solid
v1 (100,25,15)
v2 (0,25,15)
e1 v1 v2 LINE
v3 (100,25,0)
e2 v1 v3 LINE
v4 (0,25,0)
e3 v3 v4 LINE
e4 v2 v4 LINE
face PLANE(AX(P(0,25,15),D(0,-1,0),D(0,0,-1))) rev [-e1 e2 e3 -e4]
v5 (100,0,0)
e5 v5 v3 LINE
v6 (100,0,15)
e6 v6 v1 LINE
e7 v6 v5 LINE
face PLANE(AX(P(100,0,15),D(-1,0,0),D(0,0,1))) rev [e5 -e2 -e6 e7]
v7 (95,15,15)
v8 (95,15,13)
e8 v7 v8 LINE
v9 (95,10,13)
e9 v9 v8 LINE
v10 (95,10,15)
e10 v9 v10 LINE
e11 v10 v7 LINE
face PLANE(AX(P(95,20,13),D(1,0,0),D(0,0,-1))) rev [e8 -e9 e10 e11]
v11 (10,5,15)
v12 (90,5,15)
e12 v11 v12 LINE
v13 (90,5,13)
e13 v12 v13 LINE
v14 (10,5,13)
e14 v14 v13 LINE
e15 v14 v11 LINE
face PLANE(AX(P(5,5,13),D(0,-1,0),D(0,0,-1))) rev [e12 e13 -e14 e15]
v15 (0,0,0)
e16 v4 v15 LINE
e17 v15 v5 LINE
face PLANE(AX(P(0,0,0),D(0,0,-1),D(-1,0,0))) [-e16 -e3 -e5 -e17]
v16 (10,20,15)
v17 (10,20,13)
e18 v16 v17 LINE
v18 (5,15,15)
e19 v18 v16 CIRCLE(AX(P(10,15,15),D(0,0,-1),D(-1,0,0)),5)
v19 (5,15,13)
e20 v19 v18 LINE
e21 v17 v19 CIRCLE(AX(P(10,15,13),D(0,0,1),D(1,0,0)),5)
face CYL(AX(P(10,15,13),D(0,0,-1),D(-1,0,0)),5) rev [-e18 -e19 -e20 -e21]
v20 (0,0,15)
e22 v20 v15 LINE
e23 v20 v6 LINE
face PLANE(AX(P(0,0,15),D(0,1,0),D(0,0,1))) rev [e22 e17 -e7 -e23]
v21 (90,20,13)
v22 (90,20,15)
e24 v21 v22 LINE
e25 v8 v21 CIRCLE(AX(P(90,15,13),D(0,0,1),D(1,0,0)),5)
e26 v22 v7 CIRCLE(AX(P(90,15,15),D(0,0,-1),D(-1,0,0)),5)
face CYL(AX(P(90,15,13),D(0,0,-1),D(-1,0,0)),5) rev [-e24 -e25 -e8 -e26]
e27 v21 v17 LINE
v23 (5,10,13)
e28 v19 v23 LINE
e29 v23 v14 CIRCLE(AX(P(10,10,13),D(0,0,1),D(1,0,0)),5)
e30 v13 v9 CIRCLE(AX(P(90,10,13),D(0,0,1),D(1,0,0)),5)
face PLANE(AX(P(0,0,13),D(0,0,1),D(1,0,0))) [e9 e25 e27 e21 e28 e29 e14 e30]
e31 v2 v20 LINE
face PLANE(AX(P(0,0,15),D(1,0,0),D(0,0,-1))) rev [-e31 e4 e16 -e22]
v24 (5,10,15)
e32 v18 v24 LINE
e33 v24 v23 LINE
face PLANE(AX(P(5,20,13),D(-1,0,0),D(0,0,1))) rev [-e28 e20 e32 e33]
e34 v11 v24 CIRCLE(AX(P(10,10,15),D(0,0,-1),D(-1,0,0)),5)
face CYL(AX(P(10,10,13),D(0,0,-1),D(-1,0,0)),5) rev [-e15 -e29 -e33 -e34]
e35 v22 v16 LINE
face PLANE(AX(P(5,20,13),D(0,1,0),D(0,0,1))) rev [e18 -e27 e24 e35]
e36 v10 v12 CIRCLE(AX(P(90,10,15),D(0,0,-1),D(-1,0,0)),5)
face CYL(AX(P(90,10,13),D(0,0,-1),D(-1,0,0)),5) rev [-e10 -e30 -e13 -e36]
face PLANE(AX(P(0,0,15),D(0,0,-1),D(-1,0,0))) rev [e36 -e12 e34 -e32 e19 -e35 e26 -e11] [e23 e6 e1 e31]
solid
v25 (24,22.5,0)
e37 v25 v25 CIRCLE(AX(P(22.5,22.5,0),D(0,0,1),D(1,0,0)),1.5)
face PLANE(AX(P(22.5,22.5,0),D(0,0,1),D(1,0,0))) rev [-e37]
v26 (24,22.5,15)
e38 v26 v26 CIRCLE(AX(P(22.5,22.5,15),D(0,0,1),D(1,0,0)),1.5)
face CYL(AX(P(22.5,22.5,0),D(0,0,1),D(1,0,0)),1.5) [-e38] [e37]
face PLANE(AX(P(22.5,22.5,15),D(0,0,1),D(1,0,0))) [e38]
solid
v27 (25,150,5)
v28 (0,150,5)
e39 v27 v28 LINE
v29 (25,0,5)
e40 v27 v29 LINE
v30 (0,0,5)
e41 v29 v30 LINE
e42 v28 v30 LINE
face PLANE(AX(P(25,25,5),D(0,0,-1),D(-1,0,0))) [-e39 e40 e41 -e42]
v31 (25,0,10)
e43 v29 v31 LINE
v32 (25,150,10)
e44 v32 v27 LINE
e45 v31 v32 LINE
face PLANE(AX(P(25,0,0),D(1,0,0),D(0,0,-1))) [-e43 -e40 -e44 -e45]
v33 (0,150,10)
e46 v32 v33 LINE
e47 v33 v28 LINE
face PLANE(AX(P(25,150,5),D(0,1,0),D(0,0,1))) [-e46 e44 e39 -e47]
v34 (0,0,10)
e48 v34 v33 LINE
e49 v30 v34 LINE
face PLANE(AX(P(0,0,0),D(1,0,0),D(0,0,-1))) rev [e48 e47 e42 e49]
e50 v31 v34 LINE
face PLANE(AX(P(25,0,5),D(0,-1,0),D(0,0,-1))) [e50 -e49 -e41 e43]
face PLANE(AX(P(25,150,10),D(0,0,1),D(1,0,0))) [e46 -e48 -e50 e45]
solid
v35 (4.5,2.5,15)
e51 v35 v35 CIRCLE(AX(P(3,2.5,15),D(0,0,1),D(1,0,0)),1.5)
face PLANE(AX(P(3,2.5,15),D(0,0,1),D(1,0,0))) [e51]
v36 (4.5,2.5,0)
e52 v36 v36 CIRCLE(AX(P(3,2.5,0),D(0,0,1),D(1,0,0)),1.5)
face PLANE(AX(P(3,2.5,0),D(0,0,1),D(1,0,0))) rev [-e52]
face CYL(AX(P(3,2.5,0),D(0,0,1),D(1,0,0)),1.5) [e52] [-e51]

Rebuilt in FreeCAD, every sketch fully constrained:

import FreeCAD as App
import Part
import Sketcher

V = App.Vector


def edges_at(feature, points):
    """Names of the edges that pass closest to the given points."""
    edges = feature.Shape.Edges
    near = lambda p: min(range(len(edges)), key=lambda i: edges[i].distToShape(Part.Vertex(*p))[0])
    return sorted({f"Edge{near(p) + 1}" for p in points})


def add_polygon(sketch, points):
    """Adds a closed chain of lines whose ends are joined by coincident constraints."""
    first, n = sketch.GeometryCount, len(points)
    for a, b in zip(points, points[1:] + points[:1]):
        sketch.addGeometry(Part.LineSegment(App.Vector(*a, 0), App.Vector(*b, 0)), False)
    for i in range(n):
        sketch.addConstraint(Sketcher.Constraint("Coincident", first + i, 2, first + (i + 1) % n, 1))

doc = App.newDocument("Part")
body = doc.addObject("PartDesign::Body", "Body")

# Sketch on XY plane
sketch1 = doc.addObject("Sketcher::SketchObject", "Sketch")
body.addObject(sketch1)
sketch1.AttachmentSupport = (doc.XY_Plane, [""])
sketch1.MapMode = "FlatFace"
add_polygon(sketch1, [(0, 25), (0, 0), (100, 0), (100, 25)])  # lines 0-3
sketch1.addConstraint(Sketcher.Constraint("Vertical", 0))
sketch1.addConstraint(Sketcher.Constraint("Horizontal", 1))
sketch1.addConstraint(Sketcher.Constraint("Vertical", 2))
sketch1.addConstraint(Sketcher.Constraint("Horizontal", 3))
sketch1.addConstraint(Sketcher.Constraint("Coincident", 0, 2, -1, 1))
sketch1.addConstraint(Sketcher.Constraint("DistanceX", 1, 1, 1, 2, 100.0))
sketch1.addConstraint(Sketcher.Constraint("DistanceY", 0, 2, 0, 1, 25.0))
pad1 = doc.addObject("PartDesign::Pad", "Pad")
body.addObject(pad1)
pad1.Profile = sketch1
pad1.Length = 15

# Sketch on XY plane
sketch2 = doc.addObject("Sketcher::SketchObject", "Sketch001")
body.addObject(sketch2)
sketch2.AttachmentSupport = (doc.XY_Plane, [""])
sketch2.MapMode = "FlatFace"
sketch2.AttachmentOffset = App.Placement(V(0, 0, 15), App.Rotation())
add_polygon(sketch2, [(5, 20), (5, 5), (95, 5), (95, 20)])  # lines 0-3
sketch2.addConstraint(Sketcher.Constraint("Vertical", 0))
sketch2.addConstraint(Sketcher.Constraint("Horizontal", 1))
sketch2.addConstraint(Sketcher.Constraint("Vertical", 2))
sketch2.addConstraint(Sketcher.Constraint("Horizontal", 3))
sketch2.addConstraint(Sketcher.Constraint("DistanceX", 1, 1, 1, 2, 90.0))
sketch2.addConstraint(Sketcher.Constraint("DistanceY", 0, 2, 0, 1, 15.0))
sketch2.addConstraint(Sketcher.Constraint("DistanceX", -1, 1, 0, 2, 5.0))
sketch2.addConstraint(Sketcher.Constraint("DistanceY", -1, 1, 0, 2, 5.0))
pocket1 = doc.addObject("PartDesign::Pocket", "Pocket")
body.addObject(pocket1)
pocket1.Profile = sketch2
pocket1.Length = 2
doc.recompute()

fillet = doc.addObject("PartDesign::Fillet", "Fillet")
body.addObject(fillet)
fillet.Base = (pocket1, edges_at(pocket1, [
    (5, 5, 14),
    (5, 20, 14),
    (95, 20, 14),
    (95, 5, 14),
]))
fillet.Radius = 5
body2 = doc.addObject("PartDesign::Body", "Body001")

# Sketch on YZ plane
sketch3 = doc.addObject("Sketcher::SketchObject", "Sketch002")
body2.addObject(sketch3)
sketch3.AttachmentSupport = (doc.getObject("YZ_Plane001"), [""])
sketch3.MapMode = "FlatFace"
add_polygon(sketch3, [(0, 5), (0, 10), (150, 10), (150, 5)])  # lines 0-3
sketch3.addConstraint(Sketcher.Constraint("Vertical", 0))
sketch3.addConstraint(Sketcher.Constraint("Horizontal", 1))
sketch3.addConstraint(Sketcher.Constraint("Vertical", 2))
sketch3.addConstraint(Sketcher.Constraint("Horizontal", 3))
sketch3.addConstraint(Sketcher.Constraint("PointOnObject", 0, 2, -2))
sketch3.addConstraint(Sketcher.Constraint("DistanceX", 1, 1, 1, 2, 150.0))
sketch3.addConstraint(Sketcher.Constraint("DistanceY", 0, 1, 0, 2, 5.0))
sketch3.addConstraint(Sketcher.Constraint("DistanceY", -1, 1, 0, 2, 10.0))
pad2 = doc.addObject("PartDesign::Pad", "Pad001")
body2.addObject(pad2)
pad2.Profile = sketch3
pad2.Length = 25
body3 = doc.addObject("PartDesign::Body", "Body002")

# Sketch on XY plane
sketch4 = doc.addObject("Sketcher::SketchObject", "Sketch003")
body3.addObject(sketch4)
sketch4.AttachmentSupport = (doc.getObject("XY_Plane002"), [""])
sketch4.MapMode = "FlatFace"
sketch4.AttachmentOffset = App.Placement(V(0, 0, 15), App.Rotation())
sketch4.addGeometry(Part.Circle(V(22.5, 22.5, 0), V(0, 0, 1), 1.5), False)
sketch4.addConstraint(Sketcher.Constraint("Diameter", 0, 3.0))
sketch4.addConstraint(Sketcher.Constraint("DistanceX", -1, 1, 0, 3, 22.5))
sketch4.addConstraint(Sketcher.Constraint("DistanceY", -1, 1, 0, 3, 22.5))
pad3 = doc.addObject("PartDesign::Pad", "Pad002")
body3.addObject(pad3)
pad3.Profile = sketch4
pad3.Length = 15
pad3.Reversed = True
body4 = doc.addObject("PartDesign::Body", "Body003")

# Sketch on XY plane
sketch5 = doc.addObject("Sketcher::SketchObject", "Sketch004")
body4.addObject(sketch5)
sketch5.AttachmentSupport = (doc.getObject("XY_Plane003"), [""])
sketch5.MapMode = "FlatFace"
sketch5.AttachmentOffset = App.Placement(V(0, 0, 15), App.Rotation())
sketch5.addGeometry(Part.Circle(V(3, 2.5, 0), V(0, 0, 1), 1.5), False)
sketch5.addConstraint(Sketcher.Constraint("Diameter", 0, 3.0))
sketch5.addConstraint(Sketcher.Constraint("DistanceX", -1, 1, 0, 3, 3.0))
sketch5.addConstraint(Sketcher.Constraint("DistanceY", -1, 1, 0, 3, 2.5))
pad4 = doc.addObject("PartDesign::Pad", "Pad003")
body4.addObject(pad4)
pad4.Profile = sketch5
pad4.Length = 15
pad4.Reversed = True

doc.recompute()
